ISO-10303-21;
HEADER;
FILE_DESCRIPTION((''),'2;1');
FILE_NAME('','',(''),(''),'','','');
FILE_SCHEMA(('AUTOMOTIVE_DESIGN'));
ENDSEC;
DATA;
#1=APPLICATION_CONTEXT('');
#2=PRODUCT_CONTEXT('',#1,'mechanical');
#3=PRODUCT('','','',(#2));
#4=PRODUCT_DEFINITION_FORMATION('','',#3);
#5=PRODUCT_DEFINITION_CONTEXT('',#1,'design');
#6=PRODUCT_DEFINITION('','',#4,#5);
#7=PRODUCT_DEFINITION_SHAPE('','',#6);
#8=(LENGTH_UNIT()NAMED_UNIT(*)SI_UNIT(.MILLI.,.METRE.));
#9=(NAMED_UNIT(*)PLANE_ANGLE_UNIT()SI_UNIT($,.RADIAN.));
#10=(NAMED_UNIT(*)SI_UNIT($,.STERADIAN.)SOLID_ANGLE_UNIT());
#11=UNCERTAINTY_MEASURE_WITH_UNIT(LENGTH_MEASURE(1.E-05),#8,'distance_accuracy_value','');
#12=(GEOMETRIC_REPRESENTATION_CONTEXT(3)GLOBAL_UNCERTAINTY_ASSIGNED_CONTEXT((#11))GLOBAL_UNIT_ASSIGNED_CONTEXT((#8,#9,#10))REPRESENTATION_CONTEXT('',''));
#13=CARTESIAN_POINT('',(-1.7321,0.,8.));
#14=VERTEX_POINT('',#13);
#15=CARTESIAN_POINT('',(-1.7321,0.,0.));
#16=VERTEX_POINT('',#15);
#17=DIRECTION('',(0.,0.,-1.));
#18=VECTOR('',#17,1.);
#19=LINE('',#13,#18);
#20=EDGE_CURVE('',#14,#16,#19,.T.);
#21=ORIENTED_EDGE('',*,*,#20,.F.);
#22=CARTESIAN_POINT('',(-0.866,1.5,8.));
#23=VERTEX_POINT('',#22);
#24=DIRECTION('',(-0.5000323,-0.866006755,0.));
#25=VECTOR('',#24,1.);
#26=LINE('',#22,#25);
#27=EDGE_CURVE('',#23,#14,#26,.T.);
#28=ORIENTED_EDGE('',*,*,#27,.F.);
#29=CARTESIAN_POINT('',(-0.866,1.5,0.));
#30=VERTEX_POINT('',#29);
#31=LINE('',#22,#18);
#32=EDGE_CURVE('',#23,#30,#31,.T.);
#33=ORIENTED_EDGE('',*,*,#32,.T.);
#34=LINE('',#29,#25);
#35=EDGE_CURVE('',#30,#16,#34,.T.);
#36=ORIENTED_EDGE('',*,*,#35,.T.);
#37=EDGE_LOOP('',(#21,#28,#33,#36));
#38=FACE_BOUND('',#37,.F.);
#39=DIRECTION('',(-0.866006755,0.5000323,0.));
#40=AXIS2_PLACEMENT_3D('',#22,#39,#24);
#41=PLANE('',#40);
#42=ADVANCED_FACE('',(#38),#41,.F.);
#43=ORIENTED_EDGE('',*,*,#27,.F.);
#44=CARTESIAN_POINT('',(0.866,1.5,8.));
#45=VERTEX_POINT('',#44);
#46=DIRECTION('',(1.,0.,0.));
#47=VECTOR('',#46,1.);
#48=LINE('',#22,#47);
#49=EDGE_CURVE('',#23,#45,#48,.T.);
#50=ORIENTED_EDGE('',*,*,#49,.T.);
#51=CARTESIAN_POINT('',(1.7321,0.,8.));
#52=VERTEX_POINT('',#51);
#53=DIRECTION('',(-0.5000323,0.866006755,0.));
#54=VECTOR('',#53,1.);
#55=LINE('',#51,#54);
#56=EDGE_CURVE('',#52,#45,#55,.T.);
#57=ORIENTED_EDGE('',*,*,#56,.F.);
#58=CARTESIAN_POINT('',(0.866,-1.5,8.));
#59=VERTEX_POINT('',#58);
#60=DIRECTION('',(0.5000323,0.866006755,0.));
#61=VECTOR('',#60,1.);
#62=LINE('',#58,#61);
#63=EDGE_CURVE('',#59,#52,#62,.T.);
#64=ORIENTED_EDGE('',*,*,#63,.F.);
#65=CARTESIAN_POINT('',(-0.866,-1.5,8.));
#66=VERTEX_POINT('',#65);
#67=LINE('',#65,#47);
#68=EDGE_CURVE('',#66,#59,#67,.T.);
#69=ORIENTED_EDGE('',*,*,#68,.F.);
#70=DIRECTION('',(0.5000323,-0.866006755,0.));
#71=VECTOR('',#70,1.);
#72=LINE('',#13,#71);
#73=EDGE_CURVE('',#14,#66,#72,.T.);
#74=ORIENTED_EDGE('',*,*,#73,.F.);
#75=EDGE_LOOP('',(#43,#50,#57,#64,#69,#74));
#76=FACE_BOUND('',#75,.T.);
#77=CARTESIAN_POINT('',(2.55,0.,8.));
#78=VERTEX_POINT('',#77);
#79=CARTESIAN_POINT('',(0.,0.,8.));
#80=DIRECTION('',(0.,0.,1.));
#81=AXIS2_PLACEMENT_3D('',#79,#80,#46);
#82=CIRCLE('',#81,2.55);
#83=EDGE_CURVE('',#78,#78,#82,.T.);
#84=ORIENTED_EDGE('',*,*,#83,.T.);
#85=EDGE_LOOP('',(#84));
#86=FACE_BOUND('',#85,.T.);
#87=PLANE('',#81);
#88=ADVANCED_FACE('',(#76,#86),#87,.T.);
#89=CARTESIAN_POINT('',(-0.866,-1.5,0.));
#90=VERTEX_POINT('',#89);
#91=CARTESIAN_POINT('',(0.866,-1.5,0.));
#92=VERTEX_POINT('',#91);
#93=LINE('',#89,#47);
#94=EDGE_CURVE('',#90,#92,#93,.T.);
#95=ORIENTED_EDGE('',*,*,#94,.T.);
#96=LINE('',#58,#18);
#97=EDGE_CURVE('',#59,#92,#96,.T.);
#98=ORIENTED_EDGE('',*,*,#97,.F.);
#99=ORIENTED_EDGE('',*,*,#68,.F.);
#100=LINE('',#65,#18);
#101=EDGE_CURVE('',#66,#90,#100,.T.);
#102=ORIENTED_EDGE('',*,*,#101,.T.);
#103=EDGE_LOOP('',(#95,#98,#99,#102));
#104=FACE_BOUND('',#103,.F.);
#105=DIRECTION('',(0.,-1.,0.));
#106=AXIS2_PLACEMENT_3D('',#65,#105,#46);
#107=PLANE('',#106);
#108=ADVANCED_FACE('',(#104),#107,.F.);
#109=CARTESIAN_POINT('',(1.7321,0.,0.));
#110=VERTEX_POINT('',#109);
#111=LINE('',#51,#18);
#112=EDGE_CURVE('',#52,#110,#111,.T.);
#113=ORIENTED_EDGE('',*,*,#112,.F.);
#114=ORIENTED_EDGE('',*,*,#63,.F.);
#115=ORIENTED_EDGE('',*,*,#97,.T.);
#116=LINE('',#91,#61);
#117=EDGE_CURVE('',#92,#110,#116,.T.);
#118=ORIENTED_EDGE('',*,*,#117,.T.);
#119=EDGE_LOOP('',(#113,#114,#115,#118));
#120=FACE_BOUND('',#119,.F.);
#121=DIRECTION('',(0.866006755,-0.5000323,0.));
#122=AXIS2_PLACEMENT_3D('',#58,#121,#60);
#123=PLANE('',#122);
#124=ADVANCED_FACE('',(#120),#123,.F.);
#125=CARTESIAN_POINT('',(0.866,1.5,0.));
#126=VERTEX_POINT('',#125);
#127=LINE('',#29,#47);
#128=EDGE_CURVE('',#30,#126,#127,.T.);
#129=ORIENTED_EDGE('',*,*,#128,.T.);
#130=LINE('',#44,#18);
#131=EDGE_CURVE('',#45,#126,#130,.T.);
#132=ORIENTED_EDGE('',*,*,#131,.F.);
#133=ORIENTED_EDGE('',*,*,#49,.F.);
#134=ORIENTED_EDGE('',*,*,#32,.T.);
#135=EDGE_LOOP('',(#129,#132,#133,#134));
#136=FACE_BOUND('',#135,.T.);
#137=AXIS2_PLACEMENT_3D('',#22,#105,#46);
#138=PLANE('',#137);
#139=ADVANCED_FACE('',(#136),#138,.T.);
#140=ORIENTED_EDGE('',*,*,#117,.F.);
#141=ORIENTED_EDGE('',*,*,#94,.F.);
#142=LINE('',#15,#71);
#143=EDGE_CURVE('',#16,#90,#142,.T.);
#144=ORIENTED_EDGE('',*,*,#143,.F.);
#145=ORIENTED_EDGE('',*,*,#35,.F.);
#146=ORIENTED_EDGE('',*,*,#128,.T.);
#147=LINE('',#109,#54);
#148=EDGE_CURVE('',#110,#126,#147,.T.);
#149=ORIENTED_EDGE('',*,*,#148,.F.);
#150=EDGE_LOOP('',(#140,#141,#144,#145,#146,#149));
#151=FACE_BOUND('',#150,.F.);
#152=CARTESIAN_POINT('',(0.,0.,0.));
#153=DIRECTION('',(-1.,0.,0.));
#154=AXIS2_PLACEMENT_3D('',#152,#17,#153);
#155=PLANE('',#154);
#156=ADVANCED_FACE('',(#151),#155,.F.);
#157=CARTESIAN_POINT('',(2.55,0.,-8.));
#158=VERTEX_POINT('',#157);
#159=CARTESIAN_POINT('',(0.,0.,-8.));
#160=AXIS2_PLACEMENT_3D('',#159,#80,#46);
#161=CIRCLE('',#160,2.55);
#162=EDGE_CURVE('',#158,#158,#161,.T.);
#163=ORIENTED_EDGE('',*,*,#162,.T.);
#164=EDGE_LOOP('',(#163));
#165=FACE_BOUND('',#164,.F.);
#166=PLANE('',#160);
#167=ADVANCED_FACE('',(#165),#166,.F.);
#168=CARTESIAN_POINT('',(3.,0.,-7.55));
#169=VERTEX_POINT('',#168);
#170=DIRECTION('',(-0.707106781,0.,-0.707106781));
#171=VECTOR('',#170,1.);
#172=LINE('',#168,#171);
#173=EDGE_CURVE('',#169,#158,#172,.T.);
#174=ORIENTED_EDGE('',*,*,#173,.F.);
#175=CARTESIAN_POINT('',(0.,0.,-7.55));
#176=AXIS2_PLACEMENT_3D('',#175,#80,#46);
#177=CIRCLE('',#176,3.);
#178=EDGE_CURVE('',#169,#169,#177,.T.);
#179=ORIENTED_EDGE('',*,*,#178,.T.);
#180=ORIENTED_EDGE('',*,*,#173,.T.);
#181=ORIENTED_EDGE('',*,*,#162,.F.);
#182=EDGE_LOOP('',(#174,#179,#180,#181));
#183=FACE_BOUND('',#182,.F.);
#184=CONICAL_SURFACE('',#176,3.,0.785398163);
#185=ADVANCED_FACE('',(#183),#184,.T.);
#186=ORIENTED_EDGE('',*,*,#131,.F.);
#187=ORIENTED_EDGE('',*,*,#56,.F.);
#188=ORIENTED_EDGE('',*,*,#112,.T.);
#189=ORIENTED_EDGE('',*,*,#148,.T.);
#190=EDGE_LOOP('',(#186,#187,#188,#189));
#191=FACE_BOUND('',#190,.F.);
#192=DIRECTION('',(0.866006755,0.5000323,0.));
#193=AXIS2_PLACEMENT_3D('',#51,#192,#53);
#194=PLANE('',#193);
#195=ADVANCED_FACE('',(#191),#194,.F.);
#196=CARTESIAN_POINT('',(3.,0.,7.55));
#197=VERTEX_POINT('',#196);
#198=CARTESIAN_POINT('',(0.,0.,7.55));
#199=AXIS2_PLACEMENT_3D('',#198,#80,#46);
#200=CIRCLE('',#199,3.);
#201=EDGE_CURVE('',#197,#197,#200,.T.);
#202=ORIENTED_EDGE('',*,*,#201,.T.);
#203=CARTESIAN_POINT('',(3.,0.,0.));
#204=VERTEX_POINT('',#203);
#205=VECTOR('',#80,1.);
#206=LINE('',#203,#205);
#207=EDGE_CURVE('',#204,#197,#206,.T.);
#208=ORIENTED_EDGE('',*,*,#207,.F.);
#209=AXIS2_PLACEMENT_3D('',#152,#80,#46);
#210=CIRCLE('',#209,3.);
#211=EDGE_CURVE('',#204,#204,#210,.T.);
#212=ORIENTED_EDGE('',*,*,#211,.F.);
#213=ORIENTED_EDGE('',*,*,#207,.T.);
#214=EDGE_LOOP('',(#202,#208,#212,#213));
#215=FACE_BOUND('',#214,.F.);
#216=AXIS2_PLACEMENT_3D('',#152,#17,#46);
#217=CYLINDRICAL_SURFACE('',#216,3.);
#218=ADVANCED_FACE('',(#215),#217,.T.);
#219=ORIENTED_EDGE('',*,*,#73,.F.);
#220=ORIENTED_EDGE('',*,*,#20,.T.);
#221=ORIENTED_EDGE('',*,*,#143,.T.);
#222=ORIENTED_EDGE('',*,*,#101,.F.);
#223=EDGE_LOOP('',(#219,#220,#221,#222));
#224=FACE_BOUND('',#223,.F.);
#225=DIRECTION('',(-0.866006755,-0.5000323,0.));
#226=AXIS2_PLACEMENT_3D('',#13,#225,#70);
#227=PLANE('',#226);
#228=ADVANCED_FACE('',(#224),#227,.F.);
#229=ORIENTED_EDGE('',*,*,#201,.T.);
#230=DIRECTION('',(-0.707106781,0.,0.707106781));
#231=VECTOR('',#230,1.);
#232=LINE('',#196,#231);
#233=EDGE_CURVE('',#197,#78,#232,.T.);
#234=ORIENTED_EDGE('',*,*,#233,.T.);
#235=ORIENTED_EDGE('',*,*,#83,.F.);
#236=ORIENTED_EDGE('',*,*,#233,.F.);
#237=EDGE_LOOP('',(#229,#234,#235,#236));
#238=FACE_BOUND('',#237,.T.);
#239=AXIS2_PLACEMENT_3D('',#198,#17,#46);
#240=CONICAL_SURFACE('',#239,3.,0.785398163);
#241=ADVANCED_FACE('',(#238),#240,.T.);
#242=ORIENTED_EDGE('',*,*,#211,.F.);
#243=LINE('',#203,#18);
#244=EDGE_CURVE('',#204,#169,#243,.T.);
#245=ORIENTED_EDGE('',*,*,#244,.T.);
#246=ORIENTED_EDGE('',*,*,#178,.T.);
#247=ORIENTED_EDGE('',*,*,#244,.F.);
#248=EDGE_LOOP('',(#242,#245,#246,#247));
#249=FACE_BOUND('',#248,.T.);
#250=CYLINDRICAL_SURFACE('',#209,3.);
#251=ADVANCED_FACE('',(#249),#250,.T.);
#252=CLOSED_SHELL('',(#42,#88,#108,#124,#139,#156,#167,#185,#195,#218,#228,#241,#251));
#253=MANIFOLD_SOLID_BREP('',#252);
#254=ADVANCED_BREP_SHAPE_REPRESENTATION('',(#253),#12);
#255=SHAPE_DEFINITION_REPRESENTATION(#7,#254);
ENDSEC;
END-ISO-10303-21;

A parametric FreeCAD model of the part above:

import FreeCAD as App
import Part
import Sketcher

V = App.Vector
Q = App.Units.Quantity


def edges_at(feature, points):
    """Names of the edges that pass closest to the given points."""
    edges = feature.Shape.Edges
    near = lambda p: min(range(len(edges)), key=lambda i: edges[i].distToShape(Part.Vertex(*p))[0])
    return sorted({f"Edge{near(p) + 1}" for p in points})

doc = App.newDocument("Part")
params = doc.addObject("Spreadsheet::Sheet", "Params")
for row, (alias, value) in enumerate([
    ("sketch1_diameter", "6 mm"),
    ("pad1_length", "16 mm"),
    ("chamfer_size", "0.45 mm"),
    ("pocket1_length", "8 mm"),
], start=1):
    params.set(f"A{row}", alias)
    params.set(f"B{row}", "=" + value)
    params.setAlias(f"B{row}", alias)

body = doc.addObject("PartDesign::Body", "Body")

sketch1 = body.newObject("Sketcher::SketchObject", "Sketch")
sketch1.AttachmentSupport = (doc.getObject("XY_Plane"), [""])
sketch1.MapMode = "FlatFace"
sketch1.addGeometry(Part.Circle(V(0, 0, 0), V(0, 0, 1), 3), False)
sketch1.addConstraint([
    Sketcher.Constraint("Coincident", 0, 3, -1, 1),
    Sketcher.Constraint("Diameter", 0, Q("6 mm")),
])
sketch1.setExpression("Constraints[1]", "Params.sketch1_diameter")
pad1 = body.newObject("PartDesign::Pad", "Pad")
pad1.Profile = sketch1
pad1.setExpression("Length", "Params.pad1_length")
pad1.Midplane = True
doc.recompute()

chamfer = body.newObject("PartDesign::Chamfer", "Chamfer")
chamfer.Base = (pad1, edges_at(pad1, [(-3, 0, -8), (-3, 0, 8)]))
chamfer.setExpression("Size", "Params.chamfer_size")

sketch2 = body.newObject("Sketcher::SketchObject", "Sketch001")
sketch2.AttachmentSupport = (doc.getObject("XY_Plane"), [""])
sketch2.MapMode = "FlatFace"
sketch2.AttachmentOffset = App.Placement(V(0, 0, 8), App.Rotation())
sketch2.addGeometry([
    Part.LineSegment(V(0.9, 1.5, 0), V(-0.9, 1.5, 0)),
    Part.LineSegment(V(-0.9, 1.5, 0), V(-1.7, 0, 0)),
    Part.LineSegment(V(-1.7, 0, 0), V(-0.9, -1.5, 0)),
    Part.LineSegment(V(-0.9, -1.5, 0), V(0.9, -1.5, 0)),
    Part.LineSegment(V(0.9, -1.5, 0), V(1.7, 0, 0)),
    Part.LineSegment(V(1.7, 0, 0), V(0.9, 1.5, 0)),
], False)
sketch2.addConstraint([
    Sketcher.Constraint("Coincident", 0, 2, 1, 1),
    Sketcher.Constraint("Coincident", 1, 2, 2, 1),
    Sketcher.Constraint("Coincident", 2, 2, 3, 1),
    Sketcher.Constraint("Coincident", 3, 2, 4, 1),
    Sketcher.Constraint("Coincident", 4, 2, 5, 1),
    Sketcher.Constraint("Coincident", 5, 2, 0, 1),
    Sketcher.Constraint("Horizontal", 0),
    Sketcher.Constraint("Horizontal", 3),
    Sketcher.Constraint("Symmetric", 0, 2, 3, 2, -1, 1),
    Sketcher.Constraint("Symmetric", 1, 2, 4, 2, -1, 1),
    Sketcher.Constraint("PointOnObject", 1, 2, -1),
    Sketcher.Constraint("Parallel", 2, 5),
    Sketcher.Constraint("Vertical", 0, 2, 2, 2),
    Sketcher.Constraint("DistanceY", 2, 2, 0, 2, Q("3 mm")),
    Sketcher.Constraint("DistanceX", 0, 2, 0, 1, Q("1.732 mm")),
    Sketcher.Constraint("Distance", 1, Q("1.732 mm")),
])
pocket1 = body.newObject("PartDesign::Pocket", "Pocket")
pocket1.Profile = sketch2
pocket1.setExpression("Length", "Params.pocket1_length")

doc.recompute()
